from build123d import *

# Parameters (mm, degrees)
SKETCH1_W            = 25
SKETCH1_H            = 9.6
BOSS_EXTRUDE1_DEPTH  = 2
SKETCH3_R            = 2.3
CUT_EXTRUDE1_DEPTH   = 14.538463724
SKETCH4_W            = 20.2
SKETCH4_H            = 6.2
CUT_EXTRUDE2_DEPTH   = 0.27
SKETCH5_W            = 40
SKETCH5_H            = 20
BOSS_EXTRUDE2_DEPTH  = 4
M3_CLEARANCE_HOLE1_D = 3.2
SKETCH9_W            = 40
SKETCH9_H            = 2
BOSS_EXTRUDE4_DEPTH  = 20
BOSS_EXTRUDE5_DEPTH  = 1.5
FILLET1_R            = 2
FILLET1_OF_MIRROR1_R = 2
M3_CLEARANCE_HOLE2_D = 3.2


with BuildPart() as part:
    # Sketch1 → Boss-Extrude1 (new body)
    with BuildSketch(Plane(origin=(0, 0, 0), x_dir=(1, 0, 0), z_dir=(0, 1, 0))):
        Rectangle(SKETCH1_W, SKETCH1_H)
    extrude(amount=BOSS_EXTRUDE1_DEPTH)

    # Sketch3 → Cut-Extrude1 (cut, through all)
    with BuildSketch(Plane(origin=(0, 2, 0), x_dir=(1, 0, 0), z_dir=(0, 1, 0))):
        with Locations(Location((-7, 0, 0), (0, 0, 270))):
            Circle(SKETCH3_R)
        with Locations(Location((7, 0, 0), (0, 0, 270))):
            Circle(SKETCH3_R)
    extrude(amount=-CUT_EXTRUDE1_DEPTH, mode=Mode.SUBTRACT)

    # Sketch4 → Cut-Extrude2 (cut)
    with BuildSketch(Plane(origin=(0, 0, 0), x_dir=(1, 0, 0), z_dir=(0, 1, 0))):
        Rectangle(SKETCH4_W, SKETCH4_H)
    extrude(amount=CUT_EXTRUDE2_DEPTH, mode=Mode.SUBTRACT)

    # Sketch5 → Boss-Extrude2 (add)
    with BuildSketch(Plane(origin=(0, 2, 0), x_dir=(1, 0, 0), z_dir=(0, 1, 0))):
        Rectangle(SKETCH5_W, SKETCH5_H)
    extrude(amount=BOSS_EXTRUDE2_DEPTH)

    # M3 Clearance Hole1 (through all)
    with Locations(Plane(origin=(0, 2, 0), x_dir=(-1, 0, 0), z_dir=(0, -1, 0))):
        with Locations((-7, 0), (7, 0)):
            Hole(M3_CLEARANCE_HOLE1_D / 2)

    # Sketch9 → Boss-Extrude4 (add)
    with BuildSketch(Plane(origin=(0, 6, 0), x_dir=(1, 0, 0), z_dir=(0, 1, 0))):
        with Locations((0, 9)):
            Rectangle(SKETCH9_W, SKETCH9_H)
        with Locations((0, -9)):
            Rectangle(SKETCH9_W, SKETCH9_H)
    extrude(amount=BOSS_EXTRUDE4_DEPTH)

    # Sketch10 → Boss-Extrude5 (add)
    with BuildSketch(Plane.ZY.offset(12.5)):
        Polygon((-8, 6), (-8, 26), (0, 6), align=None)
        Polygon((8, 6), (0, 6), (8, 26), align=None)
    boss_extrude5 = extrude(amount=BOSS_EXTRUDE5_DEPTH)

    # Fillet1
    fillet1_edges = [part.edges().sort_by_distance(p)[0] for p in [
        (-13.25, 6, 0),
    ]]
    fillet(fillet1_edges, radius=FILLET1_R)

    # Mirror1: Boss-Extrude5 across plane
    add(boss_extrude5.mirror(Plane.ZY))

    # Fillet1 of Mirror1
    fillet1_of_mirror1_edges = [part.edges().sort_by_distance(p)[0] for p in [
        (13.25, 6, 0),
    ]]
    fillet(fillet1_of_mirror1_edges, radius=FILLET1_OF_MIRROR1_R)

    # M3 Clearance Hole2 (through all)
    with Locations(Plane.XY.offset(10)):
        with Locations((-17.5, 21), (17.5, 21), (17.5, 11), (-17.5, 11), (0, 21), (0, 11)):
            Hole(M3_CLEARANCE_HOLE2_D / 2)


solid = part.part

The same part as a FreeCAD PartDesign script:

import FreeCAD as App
import Part
import Sketcher

V = App.Vector


def edges_at(feature, points):
    """Names of the edges that pass closest to the given points."""
    edges = feature.Shape.Edges
    near = lambda p: min(range(len(edges)), key=lambda i: edges[i].distToShape(Part.Vertex(*p))[0])
    return sorted({f"Edge{near(p) + 1}" for p in points})


def add_polygon(sketch, points):
    """Adds a closed chain of lines whose ends are joined by coincident constraints."""
    first, n = sketch.GeometryCount, len(points)
    for a, b in zip(points, points[1:] + points[:1]):
        sketch.addGeometry(Part.LineSegment(App.Vector(*a, 0), App.Vector(*b, 0)), False)
    for i in range(n):
        sketch.addConstraint(Sketcher.Constraint("Coincident", first + i, 2, first + (i + 1) % n, 1))

doc = App.newDocument("Part")
params = doc.addObject("Spreadsheet::Sheet", "Params")
for row, (alias, value) in enumerate([
    ("sketch1_width", "25 mm"),
    ("sketch1_height", "9.6 mm"),
    ("pad1_length", "2 mm"),
    ("sketch2_diameter", "4.6 mm"),
    ("sketch3_width", "20.2 mm"),
    ("sketch3_height", "6.2 mm"),
    ("pocket2_length", "0.27 mm"),
    ("sketch4_width", "40 mm"),
    ("sketch4_height", "20 mm"),
    ("pad2_length", "4 mm"),
    ("sketch5_diameter", "3.2 mm"),
    ("hole_diameter", "3.2 mm"),
    ("sketch6_width", "40 mm"),
    ("sketch6_height", "2 mm"),
    ("pad3_length", "20 mm"),
    ("sketch7_width", "20 mm"),
    ("sketch7_height", "8 mm"),
    ("pad4_length", "1.5 mm"),
    ("fillet_radius", "2 mm"),
    ("fillet2_radius", "2 mm"),
    ("sketch8_diameter", "3.2 mm"),
    ("hole2_diameter", "3.2 mm"),
], start=1):
    params.set(f"A{row}", alias)
    params.set(f"B{row}", "=" + value)
    params.setAlias(f"B{row}", alias)

body = doc.addObject("PartDesign::Body", "Body")

# Sketch on XZ plane
sketch1 = doc.addObject("Sketcher::SketchObject", "Sketch")
body.addObject(sketch1)
sketch1.AttachmentSupport = (doc.XZ_Plane, [""])
sketch1.MapMode = "FlatFace"
add_polygon(sketch1, [(-12, -5), (-12, 5), (12, 5), (12, -5)])  # lines 0-3
sketch1.addConstraint([
    Sketcher.Constraint("Vertical", 0),
    Sketcher.Constraint("Horizontal", 1),
    Sketcher.Constraint("Vertical", 2),
    Sketcher.Constraint("Horizontal", 3),
    Sketcher.Constraint("Symmetric", 0, 2, 2, 2, -1, 1),
    Sketcher.Constraint("DistanceX", 1, 1, 1, 2, 25.0),
    Sketcher.Constraint("DistanceY", 0, 1, 0, 2, 9.6),
])
sketch1.setExpression("Constraints[9]", "Params.sketch1_width")
sketch1.setExpression("Constraints[10]", "Params.sketch1_height")
pad1 = doc.addObject("PartDesign::Pad", "Pad")
body.addObject(pad1)
pad1.Profile = sketch1
pad1.setExpression("Length", "Params.pad1_length")
pad1.Reversed = True

# Sketch on XZ plane
sketch2 = doc.addObject("Sketcher::SketchObject", "Sketch001")
body.addObject(sketch2)
sketch2.AttachmentSupport = (doc.XZ_Plane, [""])
sketch2.MapMode = "FlatFace"
sketch2.AttachmentOffset = App.Placement(V(0, 0, -2), App.Rotation())
sketch2.addGeometry([
    Part.Circle(V(-7, 0, 0), V(0, 0, 1), 2.3),
    Part.Circle(V(7, 0, 0), V(0, 0, 1), 2.3),
], False)
sketch2.addConstraint([
    Sketcher.Constraint("Equal", 0, 1),
    Sketcher.Constraint("Symmetric", 0, 3, 1, 3, -1, 1),
    Sketcher.Constraint("PointOnObject", 0, 3, -1),
    Sketcher.Constraint("Diameter", 0, 4.6),
    Sketcher.Constraint("DistanceX", 0, 3, -1, 1, 7.0),
])
sketch2.setExpression("Constraints[3]", "Params.sketch2_diameter")
pocket1 = doc.addObject("PartDesign::Pocket", "Pocket")
body.addObject(pocket1)
pocket1.Profile = sketch2
pocket1.Type = "ThroughAll"
pocket1.Reversed = True

# Sketch on XZ plane
sketch3 = doc.addObject("Sketcher::SketchObject", "Sketch002")
body.addObject(sketch3)
sketch3.AttachmentSupport = (doc.XZ_Plane, [""])
sketch3.MapMode = "FlatFace"
add_polygon(sketch3, [(-10, -3), (-10, 3), (10, 3), (10, -3)])  # lines 0-3
sketch3.addConstraint([
    Sketcher.Constraint("Vertical", 0),
    Sketcher.Constraint("Horizontal", 1),
    Sketcher.Constraint("Vertical", 2),
    Sketcher.Constraint("Horizontal", 3),
    Sketcher.Constraint("Symmetric", 0, 2, 2, 2, -1, 1),
    Sketcher.Constraint("DistanceX", 1, 1, 1, 2, 20.2),
    Sketcher.Constraint("DistanceY", 0, 1, 0, 2, 6.2),
])
sketch3.setExpression("Constraints[9]", "Params.sketch3_width")
sketch3.setExpression("Constraints[10]", "Params.sketch3_height")
pocket2 = doc.addObject("PartDesign::Pocket", "Pocket001")
body.addObject(pocket2)
pocket2.Profile = sketch3
pocket2.setExpression("Length", "Params.pocket2_length")

# Sketch on XZ plane
sketch4 = doc.addObject("Sketcher::SketchObject", "Sketch003")
body.addObject(sketch4)
sketch4.AttachmentSupport = (doc.XZ_Plane, [""])
sketch4.MapMode = "FlatFace"
sketch4.AttachmentOffset = App.Placement(V(0, 0, -2), App.Rotation())
add_polygon(sketch4, [(-20, -10), (-20, 10), (20, 10), (20, -10)])  # lines 0-3
sketch4.addConstraint([
    Sketcher.Constraint("Vertical", 0),
    Sketcher.Constraint("Horizontal", 1),
    Sketcher.Constraint("Vertical", 2),
    Sketcher.Constraint("Horizontal", 3),
    Sketcher.Constraint("Symmetric", 0, 2, 2, 2, -1, 1),
    Sketcher.Constraint("DistanceX", 1, 1, 1, 2, 40.0),
    Sketcher.Constraint("DistanceY", 0, 1, 0, 2, 20.0),
])
sketch4.setExpression("Constraints[9]", "Params.sketch4_width")
sketch4.setExpression("Constraints[10]", "Params.sketch4_height")
pad2 = doc.addObject("PartDesign::Pad", "Pad001")
body.addObject(pad2)
pad2.Profile = sketch4
pad2.setExpression("Length", "Params.pad2_length")
pad2.Reversed = True

# Sketch on XZ plane
sketch5 = doc.addObject("Sketcher::SketchObject", "Sketch004")
body.addObject(sketch5)
sketch5.AttachmentSupport = (doc.XZ_Plane, [""])
sketch5.MapMode = "FlatFace"
sketch5.AttachmentOffset = App.Placement(V(0, 0, -2), App.Rotation())
sketch5.addGeometry([
    Part.Circle(V(7, 0, 0), V(0, 0, 1), 1.6),
    Part.Circle(V(-7, 0, 0), V(0, 0, 1), 1.6),
], False)
sketch5.addConstraint([
    Sketcher.Constraint("Equal", 0, 1),
    Sketcher.Constraint("Symmetric", 0, 3, 1, 3, -1, 1),
    Sketcher.Constraint("PointOnObject", 0, 3, -1),
    Sketcher.Constraint("Diameter", 0, 3.2),
    Sketcher.Constraint("DistanceX", -1, 1, 0, 3, 7.0),
])
sketch5.setExpression("Constraints[3]", "Params.sketch5_diameter")
doc.recompute()
hole = doc.addObject("PartDesign::Hole", "Hole")
body.addObject(hole)
hole.Profile = sketch5
hole.ThreadType = "None"
hole.setExpression("Diameter", "Params.hole_diameter")
hole.DepthType = "ThroughAll"

# Sketch on XZ plane
sketch6 = doc.addObject("Sketcher::SketchObject", "Sketch005")
body.addObject(sketch6)
sketch6.AttachmentSupport = (doc.XZ_Plane, [""])
sketch6.MapMode = "FlatFace"
sketch6.AttachmentOffset = App.Placement(V(0, 0, -6), App.Rotation())
add_polygon(sketch6, [(-20, -10), (-20, -8), (20, -8), (20, -10)])  # lines 0-3
add_polygon(sketch6, [(-20, 8), (-20, 10), (20, 10), (20, 8)])  # lines 4-7
sketch6.addConstraint([
    Sketcher.Constraint("Vertical", 0),
    Sketcher.Constraint("Horizontal", 1),
    Sketcher.Constraint("Vertical", 2),
    Sketcher.Constraint("Horizontal", 3),
    Sketcher.Constraint("Vertical", 4),
    Sketcher.Constraint("Horizontal", 5),
    Sketcher.Constraint("Vertical", 6),
    Sketcher.Constraint("Horizontal", 7),
    Sketcher.Constraint("Symmetric", 2, 2, 4, 2, -1, 1),
    Sketcher.Constraint("Symmetric", 0, 2, 6, 2, -1, 1),
    Sketcher.Constraint("Vertical", 3, 2, 4, 2),
    Sketcher.Constraint("DistanceX", 1, 1, 1, 2, 40.0),
    Sketcher.Constraint("DistanceY", 0, 1, 0, 2, 2.0),
    Sketcher.Constraint("DistanceY", 0, 2, -1, 1, 8.0),
])
sketch6.setExpression("Constraints[19]", "Params.sketch6_width")
sketch6.setExpression("Constraints[20]", "Params.sketch6_height")
pad3 = doc.addObject("PartDesign::Pad", "Pad002")
body.addObject(pad3)
pad3.Profile = sketch6
pad3.setExpression("Length", "Params.pad3_length")
pad3.Reversed = True

# Sketch on YZ plane
sketch7 = doc.addObject("Sketcher::SketchObject", "Sketch006")
body.addObject(sketch7)
sketch7.AttachmentSupport = (doc.YZ_Plane, [""])
sketch7.MapMode = "FlatFace"
sketch7.AttachmentOffset = App.Placement(V(0, 0, -12.5), App.Rotation())
add_polygon(sketch7, [(26, -8), (6, -8), (6, 0)])  # lines 0-2
add_polygon(sketch7, [(6, 0), (6, 8), (26, 8)])  # lines 3-5
sketch7.addConstraint([
    Sketcher.Constraint("Horizontal", 0),
    Sketcher.Constraint("Vertical", 1),
    Sketcher.Constraint("Vertical", 3),
    Sketcher.Constraint("Horizontal", 4),
    Sketcher.Constraint("Coincident", 5, 2, 1, 2),
    Sketcher.Constraint("Symmetric", 2, 2, 4, 2, -1),
    Sketcher.Constraint("PointOnObject", 1, 2, -1),
    Sketcher.Constraint("DistanceX", 0, 2, 0, 1, 20.0),
    Sketcher.Constraint("DistanceY", 1, 1, 1, 2, 8.0),
    Sketcher.Constraint("DistanceX", -1, 1, 0, 2, 6.0),
])
sketch7.setExpression("Constraints[13]", "Params.sketch7_width")
sketch7.setExpression("Constraints[14]", "Params.sketch7_height")
pad4 = doc.addObject("PartDesign::Pad", "Pad003")
body.addObject(pad4)
pad4.Profile = sketch7
pad4.setExpression("Length", "Params.pad4_length")
pad4.Reversed = True
doc.recompute()

fillet = doc.addObject("PartDesign::Fillet", "Fillet")
body.addObject(fillet)
fillet.Base = (pad4, edges_at(pad4, [(-13.25, 6, 0)]))
fillet.setExpression("Radius", "Params.fillet_radius")
doc.recompute()

mirrored = doc.addObject("PartDesign::Mirrored", "Mirrored")
body.addObject(mirrored)
mirrored.Originals = [pad4]
mirrored.MirrorPlane = (doc.YZ_Plane, [""])
body.Tip = mirrored
doc.recompute()

fillet2 = doc.addObject("PartDesign::Fillet", "Fillet001")
body.addObject(fillet2)
fillet2.Base = (mirrored, edges_at(mirrored, [(13.25, 6, 0)]))
fillet2.setExpression("Radius", "Params.fillet2_radius")

# Sketch on XY plane
sketch8 = doc.addObject("Sketcher::SketchObject", "Sketch007")
body.addObject(sketch8)
sketch8.AttachmentSupport = (doc.XY_Plane, [""])
sketch8.MapMode = "FlatFace"
sketch8.AttachmentOffset = App.Placement(V(0, 0, 10), App.Rotation())
sketch8.addGeometry([
    Part.Circle(V(-17.5, 21, 0), V(0, 0, 1), 1.6),  # 0
    Part.Circle(V(17.5, 21, 0), V(0, 0, 1), 1.6),  # 1
    Part.Circle(V(17.5, 11, 0), V(0, 0, 1), 1.6),  # 2
    Part.Circle(V(-17.5, 11, 0), V(0, 0, 1), 1.6),  # 3
    Part.Circle(V(0, 21, 0), V(0, 0, 1), 1.6),  # 4
    Part.Circle(V(0, 11, 0), V(0, 0, 1), 1.6),  # 5
], False)
sketch8.addConstraint([
    Sketcher.Constraint("Equal", 0, 1),
    Sketcher.Constraint("Equal", 1, 2),
    Sketcher.Constraint("Equal", 2, 3),
    Sketcher.Constraint("Equal", 3, 4),
    Sketcher.Constraint("Equal", 4, 5),
    Sketcher.Constraint("Symmetric", 0, 3, 1, 3, -2),
    Sketcher.Constraint("Symmetric", 2, 3, 3, 3, -2),
    Sketcher.Constraint("PointOnObject", 4, 3, -2),
    Sketcher.Constraint("PointOnObject", 5, 3, -2),
    Sketcher.Constraint("Horizontal", 1, 3, 4, 3),
    Sketcher.Constraint("Horizontal", 3, 3, 5, 3),
    Sketcher.Constraint("Vertical", 1, 3, 2, 3),
    Sketcher.Constraint("Diameter", 0, 3.2),
    Sketcher.Constraint("DistanceY", -1, 1, 0, 3, 21.0),
    Sketcher.Constraint("DistanceY", -1, 1, 2, 3, 11.0),
    Sketcher.Constraint("DistanceX", 0, 3, 1, 3, 35.0),
])
sketch8.setExpression("Constraints[12]", "Params.sketch8_diameter")
doc.recompute()
hole2 = doc.addObject("PartDesign::Hole", "Hole001")
body.addObject(hole2)
hole2.Profile = sketch8
hole2.ThreadType = "None"
hole2.setExpression("Diameter", "Params.hole2_diameter")
hole2.DepthType = "ThroughAll"

doc.recompute()
